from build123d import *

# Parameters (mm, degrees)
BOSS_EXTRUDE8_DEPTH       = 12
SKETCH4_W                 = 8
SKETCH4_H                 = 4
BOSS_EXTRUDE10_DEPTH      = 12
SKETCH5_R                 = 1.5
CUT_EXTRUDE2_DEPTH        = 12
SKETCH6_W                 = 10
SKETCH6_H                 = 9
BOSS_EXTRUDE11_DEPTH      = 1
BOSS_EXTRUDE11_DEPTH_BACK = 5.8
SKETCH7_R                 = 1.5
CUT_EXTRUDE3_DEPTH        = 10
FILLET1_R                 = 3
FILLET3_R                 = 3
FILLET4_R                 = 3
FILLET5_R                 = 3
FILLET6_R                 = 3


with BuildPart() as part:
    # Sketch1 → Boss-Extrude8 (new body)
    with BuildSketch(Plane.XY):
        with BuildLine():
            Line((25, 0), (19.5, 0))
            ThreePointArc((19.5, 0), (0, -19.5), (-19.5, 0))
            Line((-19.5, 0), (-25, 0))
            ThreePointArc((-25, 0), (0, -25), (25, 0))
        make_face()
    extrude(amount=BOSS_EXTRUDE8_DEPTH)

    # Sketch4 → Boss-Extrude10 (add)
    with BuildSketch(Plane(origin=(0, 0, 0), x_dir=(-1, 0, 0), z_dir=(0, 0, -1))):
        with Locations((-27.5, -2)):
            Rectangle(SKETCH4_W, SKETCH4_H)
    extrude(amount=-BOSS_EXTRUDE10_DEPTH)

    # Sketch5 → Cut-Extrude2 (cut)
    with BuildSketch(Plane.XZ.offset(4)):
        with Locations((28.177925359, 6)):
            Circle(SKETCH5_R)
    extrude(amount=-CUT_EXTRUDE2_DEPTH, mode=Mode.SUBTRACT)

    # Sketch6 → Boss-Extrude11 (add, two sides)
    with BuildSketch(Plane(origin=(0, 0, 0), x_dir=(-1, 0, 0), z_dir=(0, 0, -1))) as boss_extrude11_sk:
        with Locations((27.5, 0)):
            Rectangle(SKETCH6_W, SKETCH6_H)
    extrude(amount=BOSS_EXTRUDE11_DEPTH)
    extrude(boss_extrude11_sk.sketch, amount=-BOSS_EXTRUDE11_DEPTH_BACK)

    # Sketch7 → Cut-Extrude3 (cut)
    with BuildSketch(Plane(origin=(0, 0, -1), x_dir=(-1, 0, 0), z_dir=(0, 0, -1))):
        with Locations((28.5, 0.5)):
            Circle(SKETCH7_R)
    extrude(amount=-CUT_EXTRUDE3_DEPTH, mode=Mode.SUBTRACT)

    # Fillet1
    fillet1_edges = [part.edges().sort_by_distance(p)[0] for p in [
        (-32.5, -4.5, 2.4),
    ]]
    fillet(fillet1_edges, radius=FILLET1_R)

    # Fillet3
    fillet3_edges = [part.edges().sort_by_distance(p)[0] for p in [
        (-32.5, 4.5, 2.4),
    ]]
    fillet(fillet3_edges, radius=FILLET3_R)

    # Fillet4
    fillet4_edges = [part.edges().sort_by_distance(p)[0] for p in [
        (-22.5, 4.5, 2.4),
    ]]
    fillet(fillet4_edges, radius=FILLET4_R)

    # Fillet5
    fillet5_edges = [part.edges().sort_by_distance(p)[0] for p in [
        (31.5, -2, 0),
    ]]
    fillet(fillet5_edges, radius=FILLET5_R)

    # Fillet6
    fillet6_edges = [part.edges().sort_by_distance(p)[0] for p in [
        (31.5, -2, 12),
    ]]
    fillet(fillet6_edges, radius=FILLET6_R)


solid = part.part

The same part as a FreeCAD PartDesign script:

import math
import FreeCAD as App
import Part
import Sketcher
from FreeCAD import Vector


def edges_at(feature, points):
    """Names of the edges that pass closest to the given points."""
    edges = feature.Shape.Edges
    near = lambda p: min(range(len(edges)), key=lambda i: edges[i].distToShape(Part.Vertex(*p))[0])
    return sorted({f"Edge{near(p) + 1}" for p in points})


def add_polygon(sketch, points):
    """Adds a closed chain of lines whose ends are joined by coincident constraints."""
    first, n = sketch.GeometryCount, len(points)
    for a, b in zip(points, points[1:] + points[:1]):
        sketch.addGeometry(Part.LineSegment(App.Vector(*a, 0), App.Vector(*b, 0)), False)
    for i in range(n):
        sketch.addConstraint(Sketcher.Constraint("Coincident", first + i, 2, first + (i + 1) % n, 1))

doc = App.newDocument("Part")
params = doc.addObject("Spreadsheet::Sheet", "Params")
for row, (alias, value) in enumerate([
    ("sketch1_radius", "25 mm"),
    ("sketch1_radius2", "19.5 mm"),
    ("pad1_length", "12 mm"),
    ("sketch2_width", "8 mm"),
    ("sketch2_height", "4 mm"),
    ("pad2_length", "12 mm"),
    ("sketch3_diameter", "3 mm"),
    ("pocket1_length", "12 mm"),
    ("sketch4_width", "10 mm"),
    ("sketch4_height", "9 mm"),
    ("pad3_length", "1 mm"),
    ("pad3_length2", "5.8 mm"),
    ("sketch5_diameter", "3 mm"),
    ("pocket2_length", "10 mm"),
    ("fillet_radius", "3 mm"),
    ("fillet2_radius", "3 mm"),
    ("fillet3_radius", "3 mm"),
    ("fillet4_radius", "3 mm"),
    ("fillet5_radius", "3 mm"),
], start=1):
    params.set(f"A{row}", alias)
    params.set(f"B{row}", "=" + value)
    params.setAlias(f"B{row}", alias)

body = doc.addObject("PartDesign::Body", "Body")

# Sketch on XY plane
sketch1 = body.newObject("Sketcher::SketchObject", "Sketch")
sketch1.AttachmentSupport = (doc.getObject("XY_Plane"), [""])
sketch1.MapMode = "FlatFace"
sketch1.addGeometry([
    Part.LineSegment(Vector(25, 0, 0), Vector(19.5, 0, 0)),
    Part.ArcOfCircle(Part.Circle(Vector(0, 0, 0), Vector(0, 0, 1), 19.5), math.radians(180), math.radians(360)),
    Part.LineSegment(Vector(-19.5, 0, 0), Vector(-25, 0, 0)),
    Part.ArcOfCircle(Part.Circle(Vector(0, 0, 0), Vector(0, 0, 1), 25), math.radians(180), math.radians(360)),
], False)
sketch1.addConstraint([
    Sketcher.Constraint("Coincident", 0, 2, 1, 2),
    Sketcher.Constraint("Coincident", 1, 1, 2, 1),
    Sketcher.Constraint("Coincident", 2, 2, 3, 1),
    Sketcher.Constraint("Coincident", 3, 2, 0, 1),
    Sketcher.Constraint("Horizontal", 0),
    Sketcher.Constraint("Horizontal", 2),
    Sketcher.Constraint("Coincident", 1, 3, -1, 1),
    Sketcher.Constraint("Coincident", 3, 3, -1, 1),
    Sketcher.Constraint("PointOnObject", 0, 2, -1),
    Sketcher.Constraint("PointOnObject", 1, 1, -1),
    Sketcher.Constraint("Radius", 3, 25.0),
    Sketcher.Constraint("Radius", 1, 19.5),
])
sketch1.setExpression("Constraints[10]", "Params.sketch1_radius")
sketch1.setExpression("Constraints[11]", "Params.sketch1_radius2")
pad1 = body.newObject("PartDesign::Pad", "Pad")
pad1.Profile = sketch1
pad1.setExpression("Length", "Params.pad1_length")

# Sketch on XY plane
sketch2 = body.newObject("Sketcher::SketchObject", "Sketch001")
sketch2.AttachmentSupport = (doc.getObject("XY_Plane"), [""])
sketch2.MapMode = "FlatFace"
add_polygon(sketch2, [(31.5, 0), (31.5, -4), (23.5, -4), (23.5, 0)])  # lines 0-3
sketch2.addConstraint([
    Sketcher.Constraint("Vertical", 0),
    Sketcher.Constraint("Horizontal", 1),
    Sketcher.Constraint("Vertical", 2),
    Sketcher.Constraint("Horizontal", 3),
    Sketcher.Constraint("PointOnObject", 2, 2, -1),
    Sketcher.Constraint("DistanceX", 1, 2, 1, 1, 8.0),
    Sketcher.Constraint("DistanceY", 0, 2, 0, 1, 4.0),
    Sketcher.Constraint("DistanceX", -1, 1, 0, 2, 31.5),
])
sketch2.setExpression("Constraints[9]", "Params.sketch2_width")
sketch2.setExpression("Constraints[10]", "Params.sketch2_height")
pad2 = body.newObject("PartDesign::Pad", "Pad001")
pad2.Profile = sketch2
pad2.setExpression("Length", "Params.pad2_length")

# Sketch on XZ plane
sketch3 = body.newObject("Sketcher::SketchObject", "Sketch002")
sketch3.AttachmentSupport = (doc.getObject("XZ_Plane"), [""])
sketch3.MapMode = "FlatFace"
sketch3.AttachmentOffset = App.Placement(Vector(0, 0, 4), App.Rotation())
sketch3.addGeometry(Part.Circle(Vector(28.177925, 6, 0), Vector(0, 0, 1), 1.5), False)
sketch3.addConstraint([
    Sketcher.Constraint("Diameter", 0, 3.0),
    Sketcher.Constraint("DistanceY", -1, 1, 0, 3, 6.0),
    Sketcher.Constraint("DistanceX", -1, 1, 0, 3, 28.177925),
])
sketch3.setExpression("Constraints[0]", "Params.sketch3_diameter")
pocket1 = body.newObject("PartDesign::Pocket", "Pocket")
pocket1.Profile = sketch3
pocket1.setExpression("Length", "Params.pocket1_length")

# Sketch on XY plane
sketch4 = body.newObject("Sketcher::SketchObject", "Sketch003")
sketch4.AttachmentSupport = (doc.getObject("XY_Plane"), [""])
sketch4.MapMode = "FlatFace"
add_polygon(sketch4, [(-22.5, 4.5), (-22.5, -4.5), (-32.5, -4.5), (-32.5, 4.5)])  # lines 0-3
sketch4.addConstraint([
    Sketcher.Constraint("Vertical", 0),
    Sketcher.Constraint("Horizontal", 1),
    Sketcher.Constraint("Vertical", 2),
    Sketcher.Constraint("Horizontal", 3),
    Sketcher.Constraint("DistanceX", 1, 2, 1, 1, 10.0),
    Sketcher.Constraint("DistanceY", 0, 2, 0, 1, 9.0),
    Sketcher.Constraint("DistanceX", 0, 2, -1, 1, 22.5),
    Sketcher.Constraint("DistanceY", 0, 2, -1, 1, 4.5),
])
sketch4.setExpression("Constraints[8]", "Params.sketch4_width")
sketch4.setExpression("Constraints[9]", "Params.sketch4_height")
pad3 = body.newObject("PartDesign::Pad", "Pad002")
pad3.Profile = sketch4
pad3.Type = "TwoLengths"
pad3.setExpression("Length", "Params.pad3_length")
pad3.setExpression("Length2", "Params.pad3_length2")
pad3.Reversed = True

# Sketch on XY plane
sketch5 = body.newObject("Sketcher::SketchObject", "Sketch004")
sketch5.AttachmentSupport = (doc.getObject("XY_Plane"), [""])
sketch5.MapMode = "FlatFace"
sketch5.AttachmentOffset = App.Placement(Vector(0, 0, -1), App.Rotation())
sketch5.addGeometry(Part.Circle(Vector(-28.5, 0.5, 0), Vector(0, 0, 1), 1.5), False)
sketch5.addConstraint([
    Sketcher.Constraint("Diameter", 0, 3.0),
    Sketcher.Constraint("DistanceX", 0, 3, -1, 1, 28.5),
    Sketcher.Constraint("DistanceY", -1, 1, 0, 3, 0.5),
])
sketch5.setExpression("Constraints[0]", "Params.sketch5_diameter")
pocket2 = body.newObject("PartDesign::Pocket", "Pocket001")
pocket2.Profile = sketch5
pocket2.setExpression("Length", "Params.pocket2_length")
pocket2.Reversed = True
doc.recompute()

fillet = body.newObject("PartDesign::Fillet", "Fillet")
fillet.Base = (pocket2, edges_at(pocket2, [(-32.5, -4.5, 2.4)]))
fillet.setExpression("Radius", "Params.fillet_radius")
doc.recompute()

fillet2 = body.newObject("PartDesign::Fillet", "Fillet001")
fillet2.Base = (fillet, edges_at(fillet, [(-32.5, 4.5, 2.4)]))
fillet2.setExpression("Radius", "Params.fillet2_radius")
doc.recompute()

fillet3 = body.newObject("PartDesign::Fillet", "Fillet002")
fillet3.Base = (fillet2, edges_at(fillet2, [(-22.5, 4.5, 2.4)]))
fillet3.setExpression("Radius", "Params.fillet3_radius")
doc.recompute()

fillet4 = body.newObject("PartDesign::Fillet", "Fillet003")
fillet4.Base = (fillet3, edges_at(fillet3, [(31.5, -2, 0)]))
fillet4.setExpression("Radius", "Params.fillet4_radius")
doc.recompute()

fillet5 = body.newObject("PartDesign::Fillet", "Fillet004")
fillet5.Base = (fillet4, edges_at(fillet4, [(31.5, -2, 12)]))
fillet5.setExpression("Radius", "Params.fillet5_radius")

doc.recompute()
